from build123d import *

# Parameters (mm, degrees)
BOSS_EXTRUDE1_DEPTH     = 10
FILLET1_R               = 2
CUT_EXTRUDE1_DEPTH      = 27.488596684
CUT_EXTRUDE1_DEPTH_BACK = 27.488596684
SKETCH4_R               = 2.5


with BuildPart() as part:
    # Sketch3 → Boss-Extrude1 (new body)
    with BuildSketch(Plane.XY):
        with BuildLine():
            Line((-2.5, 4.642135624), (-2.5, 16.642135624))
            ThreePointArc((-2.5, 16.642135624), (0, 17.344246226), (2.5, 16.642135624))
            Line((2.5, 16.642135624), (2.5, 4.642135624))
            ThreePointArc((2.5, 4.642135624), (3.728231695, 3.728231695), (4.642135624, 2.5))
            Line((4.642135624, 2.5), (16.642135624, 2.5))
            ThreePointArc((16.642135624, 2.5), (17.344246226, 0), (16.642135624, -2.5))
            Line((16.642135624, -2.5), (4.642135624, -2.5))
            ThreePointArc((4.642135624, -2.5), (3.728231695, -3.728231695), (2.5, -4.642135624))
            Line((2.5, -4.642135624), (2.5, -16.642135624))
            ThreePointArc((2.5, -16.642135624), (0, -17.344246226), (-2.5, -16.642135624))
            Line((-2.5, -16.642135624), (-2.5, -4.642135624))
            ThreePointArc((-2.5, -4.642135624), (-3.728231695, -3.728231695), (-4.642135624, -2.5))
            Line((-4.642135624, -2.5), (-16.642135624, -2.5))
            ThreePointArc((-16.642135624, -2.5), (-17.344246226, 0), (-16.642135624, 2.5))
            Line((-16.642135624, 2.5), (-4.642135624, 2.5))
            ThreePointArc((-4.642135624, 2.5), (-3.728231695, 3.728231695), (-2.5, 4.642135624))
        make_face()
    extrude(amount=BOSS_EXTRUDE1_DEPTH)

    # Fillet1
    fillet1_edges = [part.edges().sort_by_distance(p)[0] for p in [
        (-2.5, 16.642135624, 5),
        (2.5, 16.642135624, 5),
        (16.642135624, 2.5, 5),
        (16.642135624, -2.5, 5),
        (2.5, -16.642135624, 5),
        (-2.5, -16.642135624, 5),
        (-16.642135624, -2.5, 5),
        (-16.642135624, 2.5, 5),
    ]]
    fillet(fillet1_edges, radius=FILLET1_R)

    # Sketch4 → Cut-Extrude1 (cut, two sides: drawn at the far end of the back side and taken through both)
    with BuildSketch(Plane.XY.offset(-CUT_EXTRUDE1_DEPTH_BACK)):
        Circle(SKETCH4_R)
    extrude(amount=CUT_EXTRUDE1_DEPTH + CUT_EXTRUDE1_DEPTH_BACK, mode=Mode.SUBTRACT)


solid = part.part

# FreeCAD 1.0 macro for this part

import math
import FreeCAD as App
import Part
import Sketcher


def edges_at(feature, points):
    """Names of the edges that pass closest to the given points."""
    edges = feature.Shape.Edges
    near = lambda p: min(range(len(edges)), key=lambda i: edges[i].distToShape(Part.Vertex(*p))[0])
    return sorted({f"Edge{near(p) + 1}" for p in points})

doc = App.newDocument("Part")
params = doc.addObject("Spreadsheet::Sheet", "Params")
for row, (alias, value) in enumerate([
    ("sketch1_width", "12 mm"),
    ("pad1_length", "10 mm"),
    ("fillet_radius", "2 mm"),
    ("sketch2_diameter", "5 mm"),
], start=1):
    params.set(f"A{row}", alias)
    params.set(f"B{row}", "=" + value)
    params.setAlias(f"B{row}", alias)

body = doc.addObject("PartDesign::Body", "Body")

# Sketch on XY plane
sketch1 = body.newObject("Sketcher::SketchObject", "Sketch")
sketch1.AttachmentSupport = (doc.getObject("XY_Plane"), [""])
sketch1.MapMode = "FlatFace"
sketch1.addGeometry([
    Part.LineSegment(App.Vector(-2.5, 16.6, 0), App.Vector(-2.5, 4.6, 0)),  # 0
    Part.ArcOfCircle(Part.Circle(App.Vector(0, 0, 0), App.Vector(0, 0, 1), 5.3), math.radians(118), math.radians(152)),  # 1
    Part.LineSegment(App.Vector(-4.6, 2.5, 0), App.Vector(-16.6, 2.5, 0)),  # 2
    Part.ArcOfCircle(Part.Circle(App.Vector(-12.5, 0, 0), App.Vector(0, 0, 1), 4.8), math.radians(149), math.radians(211)),  # 3
    Part.LineSegment(App.Vector(-16.6, -2.5, 0), App.Vector(-4.6, -2.5, 0)),  # 4
    Part.ArcOfCircle(Part.Circle(App.Vector(0, 0, 0), App.Vector(0, 0, 1), 5.3), math.radians(-152), math.radians(-118)),  # 5
    Part.LineSegment(App.Vector(-2.5, -4.6, 0), App.Vector(-2.5, -16.6, 0)),  # 6
    Part.ArcOfCircle(Part.Circle(App.Vector(0, -12.5, 0), App.Vector(0, 0, 1), 4.8), math.radians(-121), math.radians(-59)),  # 7
    Part.LineSegment(App.Vector(2.5, -16.6, 0), App.Vector(2.5, -4.6, 0)),  # 8
    Part.ArcOfCircle(Part.Circle(App.Vector(0, 0, 0), App.Vector(0, 0, 1), 5.3), math.radians(-62), math.radians(-28)),  # 9
    Part.LineSegment(App.Vector(4.6, -2.5, 0), App.Vector(16.6, -2.5, 0)),  # 10
    Part.ArcOfCircle(Part.Circle(App.Vector(12.5, 0, 0), App.Vector(0, 0, 1), 4.8), math.radians(-31), math.radians(31)),  # 11
    Part.LineSegment(App.Vector(16.6, 2.5, 0), App.Vector(4.6, 2.5, 0)),  # 12
    Part.ArcOfCircle(Part.Circle(App.Vector(0, 0, 0), App.Vector(0, 0, 1), 5.3), math.radians(28), math.radians(62)),  # 13
    Part.LineSegment(App.Vector(2.5, 4.6, 0), App.Vector(2.5, 16.6, 0)),  # 14
    Part.ArcOfCircle(Part.Circle(App.Vector(0, 12.5, 0), App.Vector(0, 0, 1), 4.8), math.radians(59), math.radians(121)),  # 15
], False)
sketch1.addConstraint([
    Sketcher.Constraint("Coincident", 0, 2, 1, 1),
    Sketcher.Constraint("Coincident", 1, 2, 2, 1),
    Sketcher.Constraint("Coincident", 2, 2, 3, 1),
    Sketcher.Constraint("Coincident", 3, 2, 4, 1),
    Sketcher.Constraint("Coincident", 4, 2, 5, 1),
    Sketcher.Constraint("Coincident", 5, 2, 6, 1),
    Sketcher.Constraint("Coincident", 6, 2, 7, 1),
    Sketcher.Constraint("Coincident", 7, 2, 8, 1),
    Sketcher.Constraint("Coincident", 8, 2, 9, 1),
    Sketcher.Constraint("Coincident", 9, 2, 10, 1),
    Sketcher.Constraint("Coincident", 10, 2, 11, 1),
    Sketcher.Constraint("Coincident", 11, 2, 12, 1),
    Sketcher.Constraint("Coincident", 12, 2, 13, 1),
    Sketcher.Constraint("Coincident", 13, 2, 14, 1),
    Sketcher.Constraint("Coincident", 14, 2, 15, 1),
    Sketcher.Constraint("Coincident", 15, 2, 0, 1),
    Sketcher.Constraint("Vertical", 0),
    Sketcher.Constraint("Horizontal", 2),
    Sketcher.Constraint("Horizontal", 4),
    Sketcher.Constraint("Vertical", 6),
    Sketcher.Constraint("Vertical", 8),
    Sketcher.Constraint("Horizontal", 10),
    Sketcher.Constraint("Horizontal", 12),
    Sketcher.Constraint("Vertical", 14),
    Sketcher.Constraint("Coincident", 1, 3, -1, 1),
    Sketcher.Constraint("Coincident", 5, 3, -1, 1),
    Sketcher.Constraint("Coincident", 9, 3, -1, 1),
    Sketcher.Constraint("Coincident", 13, 3, -1, 1),
    Sketcher.Constraint("Equal", 1, 5),
    Sketcher.Constraint("Equal", 3, 7),
    Sketcher.Constraint("Equal", 5, 9),
    Sketcher.Constraint("Equal", 7, 11),
    Sketcher.Constraint("Equal", 9, 13),
    Sketcher.Constraint("Equal", 11, 15),
    Sketcher.Constraint("Symmetric", 3, 3, 11, 3, -1, 1),
    Sketcher.Constraint("Symmetric", 7, 3, 15, 3, -1, 1),
    Sketcher.Constraint("Symmetric", 6, 2, 7, 2, -2),
    Sketcher.Constraint("Symmetric", 3, 2, 10, 2, -2),
    Sketcher.Constraint("Horizontal", 2, 2, 11, 2),
    Sketcher.Constraint("Horizontal", 0, 2, 13, 2),
    Sketcher.Constraint("Vertical", 2, 2, 3, 2),
    Sketcher.Constraint("Vertical", 0, 2, 5, 2),
    Sketcher.Constraint("Equal", 12, 0),
    Sketcher.Constraint("DistanceX", 2, 2, 2, 1, 12.0),
    Sketcher.Constraint("DistanceY", 3, 2, 2, 2, 5.0),
    Sketcher.Constraint("DistanceX", 6, 2, 7, 2, 5.0),
    Sketcher.Constraint("Radius", 3, 4.801921),
    Sketcher.Constraint("Radius", 1, 5.272516),
])
sketch1.setExpression("Constraints[43]", "Params.sketch1_width")
pad1 = body.newObject("PartDesign::Pad", "Pad")
pad1.Profile = sketch1
pad1.setExpression("Length", "Params.pad1_length")
doc.recompute()

fillet = body.newObject("PartDesign::Fillet", "Fillet")
fillet.Base = (pad1, edges_at(pad1, [
    (-2.5, 16.642, 5),
    (2.5, 16.642, 5),
    (16.642, 2.5, 5),
    (16.642, -2.5, 5),
    (2.5, -16.642, 5),
    (-2.5, -16.642, 5),
    (-16.642, -2.5, 5),
    (-16.642, 2.5, 5),
]))
fillet.setExpression("Radius", "Params.fillet_radius")

# Sketch on XY plane
sketch2 = body.newObject("Sketcher::SketchObject", "Sketch001")
sketch2.AttachmentSupport = (doc.getObject("XY_Plane"), [""])
sketch2.MapMode = "FlatFace"
sketch2.addGeometry(Part.Circle(App.Vector(0, 0, 0), App.Vector(0, 0, 1), 2.5), False)
sketch2.addConstraint([
    Sketcher.Constraint("Coincident", 0, 3, -1, 1),
    Sketcher.Constraint("Diameter", 0, 5.0),
])
sketch2.setExpression("Constraints[1]", "Params.sketch2_diameter")
pocket1 = body.newObject("PartDesign::Pocket", "Pocket")
pocket1.Profile = sketch2
pocket1.Type = "ThroughAll"
pocket1.Midplane = True

doc.recompute()
